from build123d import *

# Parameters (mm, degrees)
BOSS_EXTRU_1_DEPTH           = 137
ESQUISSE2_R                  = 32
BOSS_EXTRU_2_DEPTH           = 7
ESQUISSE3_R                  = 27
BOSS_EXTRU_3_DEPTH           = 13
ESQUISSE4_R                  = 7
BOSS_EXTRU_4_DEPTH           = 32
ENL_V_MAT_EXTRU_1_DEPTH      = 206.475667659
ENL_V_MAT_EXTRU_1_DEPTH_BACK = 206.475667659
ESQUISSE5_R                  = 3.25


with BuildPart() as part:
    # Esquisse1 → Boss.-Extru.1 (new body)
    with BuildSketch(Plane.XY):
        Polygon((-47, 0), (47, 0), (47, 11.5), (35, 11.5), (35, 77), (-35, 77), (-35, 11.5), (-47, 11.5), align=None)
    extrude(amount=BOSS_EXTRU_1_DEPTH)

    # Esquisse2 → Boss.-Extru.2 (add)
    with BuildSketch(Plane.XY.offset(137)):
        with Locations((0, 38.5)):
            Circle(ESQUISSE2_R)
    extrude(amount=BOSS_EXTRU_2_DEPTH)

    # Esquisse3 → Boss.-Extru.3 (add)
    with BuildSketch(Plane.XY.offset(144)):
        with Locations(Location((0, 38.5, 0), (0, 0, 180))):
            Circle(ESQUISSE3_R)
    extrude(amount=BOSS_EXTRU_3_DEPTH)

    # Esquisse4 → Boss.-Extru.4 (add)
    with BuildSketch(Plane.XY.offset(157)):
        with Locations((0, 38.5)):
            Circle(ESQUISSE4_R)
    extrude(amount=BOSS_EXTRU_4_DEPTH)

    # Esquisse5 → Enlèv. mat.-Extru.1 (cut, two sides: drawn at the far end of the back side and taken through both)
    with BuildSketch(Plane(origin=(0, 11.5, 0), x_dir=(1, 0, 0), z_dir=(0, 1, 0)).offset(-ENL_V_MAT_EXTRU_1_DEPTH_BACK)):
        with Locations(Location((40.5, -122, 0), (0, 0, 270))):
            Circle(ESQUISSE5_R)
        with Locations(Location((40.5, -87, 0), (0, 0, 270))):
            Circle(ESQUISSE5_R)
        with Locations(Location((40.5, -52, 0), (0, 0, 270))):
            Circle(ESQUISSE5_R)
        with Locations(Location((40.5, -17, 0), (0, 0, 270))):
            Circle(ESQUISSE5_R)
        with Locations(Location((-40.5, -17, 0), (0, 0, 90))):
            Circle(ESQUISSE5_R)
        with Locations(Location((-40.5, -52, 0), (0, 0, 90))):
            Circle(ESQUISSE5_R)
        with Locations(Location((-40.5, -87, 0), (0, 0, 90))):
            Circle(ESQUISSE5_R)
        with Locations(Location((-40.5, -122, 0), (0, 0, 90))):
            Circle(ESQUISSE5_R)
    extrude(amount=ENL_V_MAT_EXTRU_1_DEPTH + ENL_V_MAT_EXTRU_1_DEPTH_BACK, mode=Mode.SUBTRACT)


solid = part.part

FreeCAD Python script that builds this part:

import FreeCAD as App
import Part
import Sketcher
Q = App.Units.Quantity


def add_polygon(sketch, points):
    """Adds a closed chain of lines whose ends are joined by coincident constraints."""
    first, n = sketch.GeometryCount, len(points)
    for a, b in zip(points, points[1:] + points[:1]):
        sketch.addGeometry(Part.LineSegment(App.Vector(*a, 0), App.Vector(*b, 0)), False)
    for i in range(n):
        sketch.addConstraint(Sketcher.Constraint("Coincident", first + i, 2, first + (i + 1) % n, 1))

doc = App.newDocument("Part")
body = doc.addObject("PartDesign::Body", "Body")

sketch1 = doc.addObject("Sketcher::SketchObject", "Sketch")
body.addObject(sketch1)
sketch1.AttachmentSupport = (doc.XY_Plane, [""])
sketch1.MapMode = "FlatFace"
add_polygon(sketch1, [(-47, 0), (47, 0), (47, 12), (35, 12), (35, 77), (-35, 77), (-35, 12), (-47, 12)])
sketch1.addConstraint([
    Sketcher.Constraint("Horizontal", 0),
    Sketcher.Constraint("Vertical", 1),
    Sketcher.Constraint("Horizontal", 2),
    Sketcher.Constraint("Vertical", 3),
    Sketcher.Constraint("Horizontal", 4),
    Sketcher.Constraint("Vertical", 5),
    Sketcher.Constraint("Horizontal", 6),
    Sketcher.Constraint("Vertical", 7),
    Sketcher.Constraint("Symmetric", 0, 2, 7, 2, -1, 1),
    Sketcher.Constraint("Symmetric", 2, 2, 5, 2, -2),
    Sketcher.Constraint("DistanceX", 0, 1, 0, 2, Q("94 mm")),
    Sketcher.Constraint("DistanceX", 2, 2, 2, 1, Q("12 mm")),
    Sketcher.Constraint("DistanceY", 1, 1, 1, 2, Q("11.5 mm")),
    Sketcher.Constraint("DistanceY", 3, 1, 3, 2, Q("65.5 mm")),
])
pad1 = doc.addObject("PartDesign::Pad", "Pad")
body.addObject(pad1)
pad1.Profile = sketch1
pad1.Length = 137

sketch2 = doc.addObject("Sketcher::SketchObject", "Sketch001")
body.addObject(sketch2)
sketch2.AttachmentSupport = (doc.XY_Plane, [""])
sketch2.MapMode = "FlatFace"
sketch2.AttachmentOffset = App.Placement(App.Vector(0, 0, 137), App.Rotation())
sketch2.addGeometry(Part.Circle(App.Vector(0, 38, 0), App.Vector(0, 0, 1), 32), False)
sketch2.addConstraint([
    Sketcher.Constraint("PointOnObject", 0, 3, -2),
    Sketcher.Constraint("Diameter", 0, Q("64 mm")),
    Sketcher.Constraint("DistanceY", -1, 1, 0, 3, Q("38.5 mm")),
])
pad2 = doc.addObject("PartDesign::Pad", "Pad001")
body.addObject(pad2)
pad2.Profile = sketch2
pad2.Length = 7

sketch3 = doc.addObject("Sketcher::SketchObject", "Sketch002")
body.addObject(sketch3)
sketch3.AttachmentSupport = (doc.XY_Plane, [""])
sketch3.MapMode = "FlatFace"
sketch3.AttachmentOffset = App.Placement(App.Vector(0, 0, 144), App.Rotation())
sketch3.addGeometry(Part.Circle(App.Vector(0, 38, 0), App.Vector(0, 0, 1), 27), False)
sketch3.addConstraint([
    Sketcher.Constraint("PointOnObject", 0, 3, -2),
    Sketcher.Constraint("Diameter", 0, Q("54 mm")),
    Sketcher.Constraint("DistanceY", -1, 1, 0, 3, Q("38.5 mm")),
])
pad3 = doc.addObject("PartDesign::Pad", "Pad002")
body.addObject(pad3)
pad3.Profile = sketch3
pad3.Length = 13

sketch4 = doc.addObject("Sketcher::SketchObject", "Sketch003")
body.addObject(sketch4)
sketch4.AttachmentSupport = (doc.XY_Plane, [""])
sketch4.MapMode = "FlatFace"
sketch4.AttachmentOffset = App.Placement(App.Vector(0, 0, 157), App.Rotation())
sketch4.addGeometry(Part.Circle(App.Vector(0, 38, 0), App.Vector(0, 0, 1), 7), False)
sketch4.addConstraint([
    Sketcher.Constraint("PointOnObject", 0, 3, -2),
    Sketcher.Constraint("Diameter", 0, Q("14 mm")),
    Sketcher.Constraint("DistanceY", -1, 1, 0, 3, Q("38.5 mm")),
])
pad4 = doc.addObject("PartDesign::Pad", "Pad003")
body.addObject(pad4)
pad4.Profile = sketch4
pad4.Length = 32

sketch5 = doc.addObject("Sketcher::SketchObject", "Sketch004")
body.addObject(sketch5)
sketch5.AttachmentSupport = (doc.XZ_Plane, [""])
sketch5.MapMode = "FlatFace"
sketch5.AttachmentOffset = App.Placement(App.Vector(0, 0, -11.5), App.Rotation())
sketch5.addGeometry([
    Part.Circle(App.Vector(40.5, 122, 0), App.Vector(0, 0, 1), 3.2),
    Part.Circle(App.Vector(40.5, 87, 0), App.Vector(0, 0, 1), 3.2),
    Part.Circle(App.Vector(40.5, 52, 0), App.Vector(0, 0, 1), 3.2),
    Part.Circle(App.Vector(40.5, 17, 0), App.Vector(0, 0, 1), 3.2),
    Part.Circle(App.Vector(-40.5, 17, 0), App.Vector(0, 0, 1), 3.2),
    Part.Circle(App.Vector(-40.5, 52, 0), App.Vector(0, 0, 1), 3.2),
    Part.Circle(App.Vector(-40.5, 87, 0), App.Vector(0, 0, 1), 3.2),
    Part.Circle(App.Vector(-40.5, 122, 0), App.Vector(0, 0, 1), 3.2),
], False)
sketch5.addConstraint([
    Sketcher.Constraint("Equal", 0, 1),
    Sketcher.Constraint("Equal", 1, 2),
    Sketcher.Constraint("Equal", 2, 3),
    Sketcher.Constraint("Equal", 3, 4),
    Sketcher.Constraint("Equal", 4, 5),
    Sketcher.Constraint("Equal", 5, 6),
    Sketcher.Constraint("Equal", 6, 7),
    Sketcher.Constraint("Symmetric", 3, 3, 4, 3, -2),
    Sketcher.Constraint("Symmetric", 2, 3, 5, 3, -2),
    Sketcher.Constraint("Symmetric", 1, 3, 6, 3, -2),
    Sketcher.Constraint("Symmetric", 0, 3, 7, 3, -2),
    Sketcher.Constraint("Vertical", 0, 3, 1, 3),
    Sketcher.Constraint("Vertical", 1, 3, 2, 3),
    Sketcher.Constraint("Vertical", 2, 3, 3, 3),
    Sketcher.Constraint("Diameter", 0, Q("6.5 mm")),
    Sketcher.Constraint("DistanceY", -1, 1, 0, 3, Q("122 mm")),
    Sketcher.Constraint("DistanceY", -1, 1, 1, 3, Q("87 mm")),
    Sketcher.Constraint("DistanceY", -1, 1, 2, 3, Q("52 mm")),
    Sketcher.Constraint("DistanceY", -1, 1, 3, 3, Q("17 mm")),
    Sketcher.Constraint("DistanceX", 4, 3, 3, 3, Q("81 mm")),
])
pocket1 = doc.addObject("PartDesign::Pocket", "Pocket")
body.addObject(pocket1)
pocket1.Profile = sketch5
pocket1.Type = "ThroughAll"
pocket1.Midplane = True

doc.recompute()
